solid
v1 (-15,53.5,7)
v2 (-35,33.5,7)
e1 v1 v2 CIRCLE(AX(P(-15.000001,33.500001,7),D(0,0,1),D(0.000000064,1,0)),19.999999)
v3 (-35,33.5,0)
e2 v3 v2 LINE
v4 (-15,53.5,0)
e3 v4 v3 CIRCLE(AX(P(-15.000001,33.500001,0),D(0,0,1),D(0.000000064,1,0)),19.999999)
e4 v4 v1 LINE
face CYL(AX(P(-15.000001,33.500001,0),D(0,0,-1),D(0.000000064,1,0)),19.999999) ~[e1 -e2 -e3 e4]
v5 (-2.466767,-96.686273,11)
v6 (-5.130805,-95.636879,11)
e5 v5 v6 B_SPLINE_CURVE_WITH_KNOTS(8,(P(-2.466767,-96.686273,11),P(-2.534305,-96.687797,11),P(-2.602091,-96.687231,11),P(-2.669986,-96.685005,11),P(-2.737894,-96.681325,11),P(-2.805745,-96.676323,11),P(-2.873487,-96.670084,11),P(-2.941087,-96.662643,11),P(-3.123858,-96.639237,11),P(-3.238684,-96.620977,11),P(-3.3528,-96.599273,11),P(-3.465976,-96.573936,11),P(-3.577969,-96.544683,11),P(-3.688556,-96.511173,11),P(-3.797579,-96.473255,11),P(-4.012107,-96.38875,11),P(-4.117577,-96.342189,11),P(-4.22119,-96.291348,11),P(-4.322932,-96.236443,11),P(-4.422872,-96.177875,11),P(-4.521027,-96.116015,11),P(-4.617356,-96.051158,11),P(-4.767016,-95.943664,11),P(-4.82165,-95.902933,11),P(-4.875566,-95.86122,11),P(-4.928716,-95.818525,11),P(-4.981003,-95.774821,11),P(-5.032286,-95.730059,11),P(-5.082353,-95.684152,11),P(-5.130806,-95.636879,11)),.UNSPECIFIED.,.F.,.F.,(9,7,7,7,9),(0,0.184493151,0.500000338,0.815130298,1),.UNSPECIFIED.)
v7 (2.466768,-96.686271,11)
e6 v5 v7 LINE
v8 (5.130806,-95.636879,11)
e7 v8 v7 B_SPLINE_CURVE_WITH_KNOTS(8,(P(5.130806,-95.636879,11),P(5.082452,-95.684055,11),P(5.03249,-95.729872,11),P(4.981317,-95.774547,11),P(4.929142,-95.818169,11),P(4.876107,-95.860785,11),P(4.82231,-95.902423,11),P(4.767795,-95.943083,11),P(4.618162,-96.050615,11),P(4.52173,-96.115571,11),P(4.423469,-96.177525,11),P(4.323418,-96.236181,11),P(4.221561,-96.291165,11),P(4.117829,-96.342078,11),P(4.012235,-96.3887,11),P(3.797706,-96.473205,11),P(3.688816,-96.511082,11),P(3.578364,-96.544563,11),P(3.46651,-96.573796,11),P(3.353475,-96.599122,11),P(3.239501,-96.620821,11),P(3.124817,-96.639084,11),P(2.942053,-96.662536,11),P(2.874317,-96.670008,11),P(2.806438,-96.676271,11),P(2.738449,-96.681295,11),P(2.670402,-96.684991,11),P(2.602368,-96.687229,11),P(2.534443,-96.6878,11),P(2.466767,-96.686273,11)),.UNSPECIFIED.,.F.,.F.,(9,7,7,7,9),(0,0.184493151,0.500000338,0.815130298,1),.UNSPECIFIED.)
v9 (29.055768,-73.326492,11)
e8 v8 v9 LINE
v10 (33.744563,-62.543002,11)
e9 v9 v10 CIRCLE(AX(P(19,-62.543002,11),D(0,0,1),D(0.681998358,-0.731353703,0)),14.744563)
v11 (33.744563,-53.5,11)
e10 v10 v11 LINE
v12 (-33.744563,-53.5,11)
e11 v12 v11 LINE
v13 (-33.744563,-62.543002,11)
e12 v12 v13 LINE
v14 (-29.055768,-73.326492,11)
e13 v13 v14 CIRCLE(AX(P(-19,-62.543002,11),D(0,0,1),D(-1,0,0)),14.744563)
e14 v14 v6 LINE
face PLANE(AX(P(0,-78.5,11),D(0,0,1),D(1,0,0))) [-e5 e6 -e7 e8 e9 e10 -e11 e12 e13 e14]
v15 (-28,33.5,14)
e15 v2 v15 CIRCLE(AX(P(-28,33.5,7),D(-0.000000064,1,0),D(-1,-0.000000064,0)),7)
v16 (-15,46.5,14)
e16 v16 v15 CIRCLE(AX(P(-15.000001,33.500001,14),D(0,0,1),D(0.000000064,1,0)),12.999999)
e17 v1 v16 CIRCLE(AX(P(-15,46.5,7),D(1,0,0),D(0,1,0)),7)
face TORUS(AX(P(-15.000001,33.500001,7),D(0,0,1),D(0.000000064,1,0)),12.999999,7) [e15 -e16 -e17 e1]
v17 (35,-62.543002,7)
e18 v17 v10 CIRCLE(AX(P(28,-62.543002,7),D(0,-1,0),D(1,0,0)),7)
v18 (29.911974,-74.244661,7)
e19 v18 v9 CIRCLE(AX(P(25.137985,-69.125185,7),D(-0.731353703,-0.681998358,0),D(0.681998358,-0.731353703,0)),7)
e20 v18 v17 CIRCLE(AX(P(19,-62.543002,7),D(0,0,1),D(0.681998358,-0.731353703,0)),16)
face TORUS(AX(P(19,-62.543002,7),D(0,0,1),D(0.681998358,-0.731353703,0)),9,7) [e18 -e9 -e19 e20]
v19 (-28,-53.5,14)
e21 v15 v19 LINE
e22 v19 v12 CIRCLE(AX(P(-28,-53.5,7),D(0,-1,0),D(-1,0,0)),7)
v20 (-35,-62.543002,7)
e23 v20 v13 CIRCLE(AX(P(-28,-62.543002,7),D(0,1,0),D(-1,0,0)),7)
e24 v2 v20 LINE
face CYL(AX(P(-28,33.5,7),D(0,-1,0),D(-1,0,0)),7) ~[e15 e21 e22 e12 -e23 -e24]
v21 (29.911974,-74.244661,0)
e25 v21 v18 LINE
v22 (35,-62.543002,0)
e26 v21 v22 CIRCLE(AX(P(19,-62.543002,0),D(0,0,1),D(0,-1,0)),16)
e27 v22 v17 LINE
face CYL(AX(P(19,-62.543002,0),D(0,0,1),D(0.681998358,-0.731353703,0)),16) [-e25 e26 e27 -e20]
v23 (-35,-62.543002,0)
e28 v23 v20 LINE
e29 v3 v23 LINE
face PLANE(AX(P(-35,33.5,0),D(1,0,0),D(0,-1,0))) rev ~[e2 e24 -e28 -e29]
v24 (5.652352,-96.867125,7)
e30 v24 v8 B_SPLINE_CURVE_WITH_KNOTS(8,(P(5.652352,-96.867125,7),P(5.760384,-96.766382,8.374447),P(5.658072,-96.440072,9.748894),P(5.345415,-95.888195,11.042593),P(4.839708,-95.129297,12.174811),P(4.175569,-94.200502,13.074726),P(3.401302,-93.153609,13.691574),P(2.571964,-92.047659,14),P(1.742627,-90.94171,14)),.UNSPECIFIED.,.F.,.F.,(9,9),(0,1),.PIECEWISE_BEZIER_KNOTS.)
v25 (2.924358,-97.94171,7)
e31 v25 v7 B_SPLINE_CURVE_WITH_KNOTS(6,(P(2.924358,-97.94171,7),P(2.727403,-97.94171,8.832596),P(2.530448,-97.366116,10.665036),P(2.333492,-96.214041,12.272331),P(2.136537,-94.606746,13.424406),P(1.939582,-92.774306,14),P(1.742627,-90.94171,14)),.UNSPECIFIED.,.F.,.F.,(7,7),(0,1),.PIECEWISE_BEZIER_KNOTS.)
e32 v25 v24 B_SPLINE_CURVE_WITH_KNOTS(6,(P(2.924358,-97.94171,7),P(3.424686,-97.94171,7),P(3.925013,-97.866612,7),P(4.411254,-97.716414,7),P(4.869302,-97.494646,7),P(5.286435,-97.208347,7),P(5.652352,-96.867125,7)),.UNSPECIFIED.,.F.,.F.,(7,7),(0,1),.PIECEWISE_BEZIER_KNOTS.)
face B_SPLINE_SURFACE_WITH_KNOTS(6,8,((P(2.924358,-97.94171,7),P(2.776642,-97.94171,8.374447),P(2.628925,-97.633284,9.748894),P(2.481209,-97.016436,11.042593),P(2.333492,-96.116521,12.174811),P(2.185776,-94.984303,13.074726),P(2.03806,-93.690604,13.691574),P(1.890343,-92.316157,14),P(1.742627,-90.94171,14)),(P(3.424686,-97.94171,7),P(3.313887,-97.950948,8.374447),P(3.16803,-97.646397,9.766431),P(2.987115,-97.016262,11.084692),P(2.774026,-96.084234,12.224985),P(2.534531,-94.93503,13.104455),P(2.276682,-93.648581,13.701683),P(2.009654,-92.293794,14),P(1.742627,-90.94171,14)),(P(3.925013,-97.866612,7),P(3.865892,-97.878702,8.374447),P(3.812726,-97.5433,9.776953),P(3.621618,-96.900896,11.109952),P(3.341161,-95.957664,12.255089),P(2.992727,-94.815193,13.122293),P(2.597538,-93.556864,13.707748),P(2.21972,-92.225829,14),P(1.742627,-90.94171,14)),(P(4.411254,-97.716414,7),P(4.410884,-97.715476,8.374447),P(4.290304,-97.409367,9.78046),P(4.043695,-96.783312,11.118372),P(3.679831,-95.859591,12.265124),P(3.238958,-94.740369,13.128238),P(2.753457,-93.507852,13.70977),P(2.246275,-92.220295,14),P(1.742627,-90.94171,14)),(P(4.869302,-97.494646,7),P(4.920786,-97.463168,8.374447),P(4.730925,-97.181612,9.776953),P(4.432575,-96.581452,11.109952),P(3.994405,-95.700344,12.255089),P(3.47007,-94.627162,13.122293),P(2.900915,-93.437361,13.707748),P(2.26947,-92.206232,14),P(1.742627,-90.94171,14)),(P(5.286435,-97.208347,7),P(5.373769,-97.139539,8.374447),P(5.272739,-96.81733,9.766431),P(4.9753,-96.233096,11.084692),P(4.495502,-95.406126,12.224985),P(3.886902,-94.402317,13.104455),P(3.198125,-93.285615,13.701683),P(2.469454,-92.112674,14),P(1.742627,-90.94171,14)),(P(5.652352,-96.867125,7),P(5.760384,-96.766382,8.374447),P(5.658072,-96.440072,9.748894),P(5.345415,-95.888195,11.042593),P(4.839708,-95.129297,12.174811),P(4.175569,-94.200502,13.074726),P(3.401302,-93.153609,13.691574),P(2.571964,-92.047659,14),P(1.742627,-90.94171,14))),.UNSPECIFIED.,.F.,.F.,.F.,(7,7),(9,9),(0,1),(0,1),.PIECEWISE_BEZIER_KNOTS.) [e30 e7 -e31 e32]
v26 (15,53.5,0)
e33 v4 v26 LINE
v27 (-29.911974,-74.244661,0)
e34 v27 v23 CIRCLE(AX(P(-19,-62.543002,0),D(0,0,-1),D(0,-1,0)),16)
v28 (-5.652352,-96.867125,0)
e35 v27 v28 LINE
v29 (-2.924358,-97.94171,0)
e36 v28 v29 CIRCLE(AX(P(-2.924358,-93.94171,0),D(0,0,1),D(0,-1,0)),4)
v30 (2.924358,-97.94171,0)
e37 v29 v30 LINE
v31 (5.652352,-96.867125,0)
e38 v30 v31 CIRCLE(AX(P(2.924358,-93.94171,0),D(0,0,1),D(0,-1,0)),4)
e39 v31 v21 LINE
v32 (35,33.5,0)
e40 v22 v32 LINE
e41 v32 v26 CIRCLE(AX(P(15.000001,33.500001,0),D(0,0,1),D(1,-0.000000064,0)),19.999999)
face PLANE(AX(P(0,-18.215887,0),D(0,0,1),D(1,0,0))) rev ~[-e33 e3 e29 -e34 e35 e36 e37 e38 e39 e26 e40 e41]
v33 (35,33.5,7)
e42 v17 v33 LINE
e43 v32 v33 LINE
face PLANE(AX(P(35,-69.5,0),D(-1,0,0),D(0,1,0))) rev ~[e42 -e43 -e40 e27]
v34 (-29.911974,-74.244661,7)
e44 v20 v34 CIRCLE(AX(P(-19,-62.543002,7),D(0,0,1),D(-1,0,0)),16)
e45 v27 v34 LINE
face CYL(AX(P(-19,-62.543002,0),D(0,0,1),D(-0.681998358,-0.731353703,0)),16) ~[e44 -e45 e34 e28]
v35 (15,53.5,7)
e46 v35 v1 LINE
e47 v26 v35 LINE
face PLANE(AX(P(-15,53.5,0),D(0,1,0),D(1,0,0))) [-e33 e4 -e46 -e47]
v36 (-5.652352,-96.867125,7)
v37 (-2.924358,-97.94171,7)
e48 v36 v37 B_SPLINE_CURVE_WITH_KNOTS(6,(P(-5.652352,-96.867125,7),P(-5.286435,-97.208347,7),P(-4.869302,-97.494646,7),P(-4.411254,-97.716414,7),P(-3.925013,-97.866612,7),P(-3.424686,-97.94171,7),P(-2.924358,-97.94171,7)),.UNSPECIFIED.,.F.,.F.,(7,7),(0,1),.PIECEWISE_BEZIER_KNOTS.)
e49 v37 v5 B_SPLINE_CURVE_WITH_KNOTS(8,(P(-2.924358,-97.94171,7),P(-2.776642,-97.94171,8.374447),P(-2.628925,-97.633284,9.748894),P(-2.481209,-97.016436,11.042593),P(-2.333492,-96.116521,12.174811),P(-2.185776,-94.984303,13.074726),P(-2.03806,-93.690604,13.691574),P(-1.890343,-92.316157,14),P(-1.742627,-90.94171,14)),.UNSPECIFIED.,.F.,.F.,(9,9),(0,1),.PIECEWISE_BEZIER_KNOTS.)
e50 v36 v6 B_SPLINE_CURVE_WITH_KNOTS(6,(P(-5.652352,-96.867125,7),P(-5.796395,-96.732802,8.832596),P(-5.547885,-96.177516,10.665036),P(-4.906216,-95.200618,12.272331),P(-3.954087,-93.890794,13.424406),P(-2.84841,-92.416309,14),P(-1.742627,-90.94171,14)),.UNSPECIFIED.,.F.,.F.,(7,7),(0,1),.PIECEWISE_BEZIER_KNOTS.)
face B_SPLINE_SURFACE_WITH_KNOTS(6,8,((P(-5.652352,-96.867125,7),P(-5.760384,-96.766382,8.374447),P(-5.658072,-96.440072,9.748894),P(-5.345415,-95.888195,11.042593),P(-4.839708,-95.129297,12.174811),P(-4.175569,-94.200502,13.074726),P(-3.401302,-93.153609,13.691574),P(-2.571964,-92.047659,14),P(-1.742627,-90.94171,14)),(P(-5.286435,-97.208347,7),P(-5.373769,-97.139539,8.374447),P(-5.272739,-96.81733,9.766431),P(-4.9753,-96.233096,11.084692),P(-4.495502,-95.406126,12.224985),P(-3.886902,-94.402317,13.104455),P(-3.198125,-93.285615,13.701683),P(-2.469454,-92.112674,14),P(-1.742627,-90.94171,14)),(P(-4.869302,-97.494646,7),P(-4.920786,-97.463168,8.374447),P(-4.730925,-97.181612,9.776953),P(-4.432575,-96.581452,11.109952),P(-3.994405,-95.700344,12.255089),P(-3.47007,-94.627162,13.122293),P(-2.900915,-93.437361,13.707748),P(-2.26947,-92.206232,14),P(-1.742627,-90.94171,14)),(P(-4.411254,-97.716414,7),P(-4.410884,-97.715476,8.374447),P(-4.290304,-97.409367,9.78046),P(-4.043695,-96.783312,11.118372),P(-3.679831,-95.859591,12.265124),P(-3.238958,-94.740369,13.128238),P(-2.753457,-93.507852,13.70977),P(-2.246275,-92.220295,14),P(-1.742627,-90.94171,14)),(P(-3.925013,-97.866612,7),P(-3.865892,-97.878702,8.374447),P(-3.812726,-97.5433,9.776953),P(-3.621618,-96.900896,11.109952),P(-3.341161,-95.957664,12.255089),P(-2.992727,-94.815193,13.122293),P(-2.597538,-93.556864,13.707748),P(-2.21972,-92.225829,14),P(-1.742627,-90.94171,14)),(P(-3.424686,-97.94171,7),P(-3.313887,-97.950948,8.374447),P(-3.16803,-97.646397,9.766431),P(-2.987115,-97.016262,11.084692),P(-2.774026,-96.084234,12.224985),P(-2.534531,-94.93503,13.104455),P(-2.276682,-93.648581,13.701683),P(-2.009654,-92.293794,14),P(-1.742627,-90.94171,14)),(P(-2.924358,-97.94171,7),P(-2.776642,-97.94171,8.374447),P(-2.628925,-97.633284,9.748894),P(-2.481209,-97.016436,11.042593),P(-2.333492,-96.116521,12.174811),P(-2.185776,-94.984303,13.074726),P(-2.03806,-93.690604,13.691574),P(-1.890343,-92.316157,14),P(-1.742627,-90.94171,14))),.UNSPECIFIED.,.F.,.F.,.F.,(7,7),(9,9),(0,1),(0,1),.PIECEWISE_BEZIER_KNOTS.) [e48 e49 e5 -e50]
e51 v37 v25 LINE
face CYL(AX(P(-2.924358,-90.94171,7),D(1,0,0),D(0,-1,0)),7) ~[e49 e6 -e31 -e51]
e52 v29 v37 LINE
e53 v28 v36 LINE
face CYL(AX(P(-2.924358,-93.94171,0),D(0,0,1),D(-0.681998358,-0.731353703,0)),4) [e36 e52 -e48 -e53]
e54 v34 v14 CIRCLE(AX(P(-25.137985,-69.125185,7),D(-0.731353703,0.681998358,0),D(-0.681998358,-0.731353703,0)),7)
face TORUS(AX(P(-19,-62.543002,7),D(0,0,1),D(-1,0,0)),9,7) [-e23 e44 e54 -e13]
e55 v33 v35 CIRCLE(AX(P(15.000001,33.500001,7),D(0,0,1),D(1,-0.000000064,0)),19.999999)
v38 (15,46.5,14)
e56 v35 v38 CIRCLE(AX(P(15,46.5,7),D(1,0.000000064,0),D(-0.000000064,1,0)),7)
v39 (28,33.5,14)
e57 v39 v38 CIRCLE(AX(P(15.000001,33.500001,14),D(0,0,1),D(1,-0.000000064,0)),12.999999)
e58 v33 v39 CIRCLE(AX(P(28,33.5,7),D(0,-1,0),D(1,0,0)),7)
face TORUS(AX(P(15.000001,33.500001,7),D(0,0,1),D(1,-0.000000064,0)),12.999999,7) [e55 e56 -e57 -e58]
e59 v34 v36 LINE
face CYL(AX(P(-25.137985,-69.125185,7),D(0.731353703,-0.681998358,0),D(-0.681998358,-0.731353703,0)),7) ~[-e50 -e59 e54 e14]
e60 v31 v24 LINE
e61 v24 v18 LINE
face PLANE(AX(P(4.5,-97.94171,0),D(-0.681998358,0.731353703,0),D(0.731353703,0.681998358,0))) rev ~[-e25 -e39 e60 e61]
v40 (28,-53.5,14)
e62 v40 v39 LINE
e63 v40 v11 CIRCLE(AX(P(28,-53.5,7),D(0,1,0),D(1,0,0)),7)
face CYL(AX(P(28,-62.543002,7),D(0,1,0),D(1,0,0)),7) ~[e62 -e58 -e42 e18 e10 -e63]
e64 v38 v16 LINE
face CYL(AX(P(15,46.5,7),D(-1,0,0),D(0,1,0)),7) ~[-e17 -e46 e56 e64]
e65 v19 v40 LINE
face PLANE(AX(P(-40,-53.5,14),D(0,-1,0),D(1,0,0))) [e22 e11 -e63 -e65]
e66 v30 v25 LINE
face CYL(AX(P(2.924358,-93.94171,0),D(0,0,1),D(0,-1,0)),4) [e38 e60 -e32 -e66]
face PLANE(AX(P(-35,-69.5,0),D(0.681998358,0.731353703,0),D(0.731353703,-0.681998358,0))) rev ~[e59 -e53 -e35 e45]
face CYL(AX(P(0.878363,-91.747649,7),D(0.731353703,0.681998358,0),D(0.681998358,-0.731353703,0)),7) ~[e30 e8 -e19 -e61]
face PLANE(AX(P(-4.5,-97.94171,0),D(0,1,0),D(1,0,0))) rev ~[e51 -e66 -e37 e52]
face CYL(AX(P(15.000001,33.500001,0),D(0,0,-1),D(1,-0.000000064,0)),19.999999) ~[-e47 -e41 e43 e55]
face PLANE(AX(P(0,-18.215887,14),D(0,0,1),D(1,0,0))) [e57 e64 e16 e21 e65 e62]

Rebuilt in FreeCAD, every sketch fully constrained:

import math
import FreeCAD as App
import Part
import Sketcher
from FreeCAD import Vector
Q = App.Units.Quantity


def edges_at(feature, points):
    """Names of the edges that pass closest to the given points."""
    edges = feature.Shape.Edges
    near = lambda p: min(range(len(edges)), key=lambda i: edges[i].distToShape(Part.Vertex(*p))[0])
    return sorted({f"Edge{near(p) + 1}" for p in points})


def add_polygon(sketch, points):
    """Adds a closed chain of lines whose ends are joined by coincident constraints."""
    first, n = sketch.GeometryCount, len(points)
    for a, b in zip(points, points[1:] + points[:1]):
        sketch.addGeometry(Part.LineSegment(App.Vector(*a, 0), App.Vector(*b, 0)), False)
    for i in range(n):
        sketch.addConstraint(Sketcher.Constraint("Coincident", first + i, 2, first + (i + 1) % n, 1))

doc = App.newDocument("Part")
body = doc.addObject("PartDesign::Body", "Body")

# Sketch on XY plane
sketch1 = body.newObject("Sketcher::SketchObject", "Sketch")
sketch1.AttachmentSupport = (doc.getObject("XY_Plane"), [""])
sketch1.MapMode = "FlatFace"
sketch1.addGeometry([
    Part.LineSegment(Vector(-35, -69.5, 0), Vector(-4.5, -97.94171, 0)),  # 0
    Part.LineSegment(Vector(-4.5, -97.94171, 0), Vector(4.5, -97.94171, 0)),  # 1
    Part.LineSegment(Vector(4.5, -97.94171, 0), Vector(35, -69.5, 0)),  # 2
    Part.LineSegment(Vector(35, -69.5, 0), Vector(35, 33.5, 0)),  # 3
    Part.ArcOfCircle(Part.Circle(Vector(15.000001, 33.500001, 0), Vector(0, 0, 1), 19.999999), math.radians(-0.000004), math.radians(90.000004)),  # 4
    Part.LineSegment(Vector(15, 53.5, 0), Vector(-15, 53.5, 0)),  # 5
    Part.ArcOfCircle(Part.Circle(Vector(-15.000001, 33.500001, 0), Vector(0, 0, 1), 19.999999), math.radians(89.999996), math.radians(180.000004)),  # 6
    Part.LineSegment(Vector(-35, 33.5, 0), Vector(-35, -69.5, 0)),  # 7
], False)
sketch1.addConstraint([
    Sketcher.Constraint("Coincident", 0, 2, 1, 1),
    Sketcher.Constraint("Coincident", 1, 2, 2, 1),
    Sketcher.Constraint("Coincident", 2, 2, 3, 1),
    Sketcher.Constraint("Tangent", 3, 2, 4, 1),
    Sketcher.Constraint("Tangent", 4, 2, 5, 1),
    Sketcher.Constraint("Tangent", 5, 2, 6, 1),
    Sketcher.Constraint("Tangent", 6, 2, 7, 1),
    Sketcher.Constraint("Coincident", 7, 2, 0, 1),
    Sketcher.Constraint("Horizontal", 1),
    Sketcher.Constraint("Vertical", 3),
    Sketcher.Constraint("Horizontal", 5),
    Sketcher.Constraint("Vertical", 7),
    Sketcher.Constraint("Equal", 4, 6),
    Sketcher.Constraint("Symmetric", 2, 2, 7, 2, -2),
    Sketcher.Constraint("Equal", 0, 2),
    Sketcher.Constraint("Radius", 4, Q("19.999999 mm")),
    Sketcher.Constraint("DistanceX", 1, 1, 1, 2, Q("9 mm")),
    Sketcher.Constraint("DistanceX", 5, 2, 5, 1, Q("30 mm")),
    Sketcher.Constraint("DistanceY", 3, 1, 3, 2, Q("103 mm")),
    Sketcher.Constraint("Angle", 0, Q("-43 deg")),
    Sketcher.Constraint("DistanceY", -1, 1, 4, 3, Q("33.500001 mm")),
])
pad1 = body.newObject("PartDesign::Pad", "Pad")
pad1.Profile = sketch1
pad1.Length = 14
doc.recompute()

fillet = body.newObject("PartDesign::Fillet", "Fillet")
fillet.Base = (pad1, edges_at(pad1, [(-4.5, -97.942, 7), (4.5, -97.942, 7)]))
fillet.Radius = 4
doc.recompute()

fillet2 = body.newObject("PartDesign::Fillet", "Fillet001")
fillet2.Base = (fillet, edges_at(fillet, [(35, -69.5, 7), (-35, -69.5, 7)]))
fillet2.Radius = 16
doc.recompute()

fillet3 = body.newObject("PartDesign::Fillet", "Fillet002")
fillet3.Base = (fillet2, edges_at(fillet2, [
    (-17.782, -85.556, 14),
    (-33.673, -68.923, 14),
    (-4.39, -97.663, 14),
    (-35, -14.522, 14),
    (0, -97.942, 14),
    (-35, -14.522, 14),
    (4.39, -97.663, 14),
    (-29.142, 47.642, 14),
    (17.782, -85.556, 14),
    (0, 53.5, 14),
    (33.673, -68.923, 14),
    (29.142, 47.642, 14),
    (35, -14.522, 14),
    (35, -14.522, 14),
]))
fillet3.Radius = 7

# Sketch on XY plane
sketch2 = body.newObject("Sketcher::SketchObject", "Sketch001")
sketch2.AttachmentSupport = (doc.getObject("XY_Plane"), [""])
sketch2.MapMode = "FlatFace"
sketch2.AttachmentOffset = App.Placement(Vector(0, 0, 14), App.Rotation())
add_polygon(sketch2, [(-40, -53.5), (-40, -103.5), (40, -103.5), (40, -53.5)])  # lines 0-3
sketch2.addConstraint([
    Sketcher.Constraint("Vertical", 0),
    Sketcher.Constraint("Horizontal", 1),
    Sketcher.Constraint("Vertical", 2),
    Sketcher.Constraint("Horizontal", 3),
    Sketcher.Constraint("DistanceX", 1, 1, 1, 2, Q("80 mm")),
    Sketcher.Constraint("DistanceY", 0, 2, 0, 1, Q("50 mm")),
    Sketcher.Constraint("DistanceX", 0, 2, -1, 1, Q("40 mm")),
    Sketcher.Constraint("DistanceY", 0, 2, -1, 1, Q("103.5 mm")),
])
pocket1 = body.newObject("PartDesign::Pocket", "Pocket")
pocket1.Profile = sketch2
pocket1.Length = 3

doc.recompute()
